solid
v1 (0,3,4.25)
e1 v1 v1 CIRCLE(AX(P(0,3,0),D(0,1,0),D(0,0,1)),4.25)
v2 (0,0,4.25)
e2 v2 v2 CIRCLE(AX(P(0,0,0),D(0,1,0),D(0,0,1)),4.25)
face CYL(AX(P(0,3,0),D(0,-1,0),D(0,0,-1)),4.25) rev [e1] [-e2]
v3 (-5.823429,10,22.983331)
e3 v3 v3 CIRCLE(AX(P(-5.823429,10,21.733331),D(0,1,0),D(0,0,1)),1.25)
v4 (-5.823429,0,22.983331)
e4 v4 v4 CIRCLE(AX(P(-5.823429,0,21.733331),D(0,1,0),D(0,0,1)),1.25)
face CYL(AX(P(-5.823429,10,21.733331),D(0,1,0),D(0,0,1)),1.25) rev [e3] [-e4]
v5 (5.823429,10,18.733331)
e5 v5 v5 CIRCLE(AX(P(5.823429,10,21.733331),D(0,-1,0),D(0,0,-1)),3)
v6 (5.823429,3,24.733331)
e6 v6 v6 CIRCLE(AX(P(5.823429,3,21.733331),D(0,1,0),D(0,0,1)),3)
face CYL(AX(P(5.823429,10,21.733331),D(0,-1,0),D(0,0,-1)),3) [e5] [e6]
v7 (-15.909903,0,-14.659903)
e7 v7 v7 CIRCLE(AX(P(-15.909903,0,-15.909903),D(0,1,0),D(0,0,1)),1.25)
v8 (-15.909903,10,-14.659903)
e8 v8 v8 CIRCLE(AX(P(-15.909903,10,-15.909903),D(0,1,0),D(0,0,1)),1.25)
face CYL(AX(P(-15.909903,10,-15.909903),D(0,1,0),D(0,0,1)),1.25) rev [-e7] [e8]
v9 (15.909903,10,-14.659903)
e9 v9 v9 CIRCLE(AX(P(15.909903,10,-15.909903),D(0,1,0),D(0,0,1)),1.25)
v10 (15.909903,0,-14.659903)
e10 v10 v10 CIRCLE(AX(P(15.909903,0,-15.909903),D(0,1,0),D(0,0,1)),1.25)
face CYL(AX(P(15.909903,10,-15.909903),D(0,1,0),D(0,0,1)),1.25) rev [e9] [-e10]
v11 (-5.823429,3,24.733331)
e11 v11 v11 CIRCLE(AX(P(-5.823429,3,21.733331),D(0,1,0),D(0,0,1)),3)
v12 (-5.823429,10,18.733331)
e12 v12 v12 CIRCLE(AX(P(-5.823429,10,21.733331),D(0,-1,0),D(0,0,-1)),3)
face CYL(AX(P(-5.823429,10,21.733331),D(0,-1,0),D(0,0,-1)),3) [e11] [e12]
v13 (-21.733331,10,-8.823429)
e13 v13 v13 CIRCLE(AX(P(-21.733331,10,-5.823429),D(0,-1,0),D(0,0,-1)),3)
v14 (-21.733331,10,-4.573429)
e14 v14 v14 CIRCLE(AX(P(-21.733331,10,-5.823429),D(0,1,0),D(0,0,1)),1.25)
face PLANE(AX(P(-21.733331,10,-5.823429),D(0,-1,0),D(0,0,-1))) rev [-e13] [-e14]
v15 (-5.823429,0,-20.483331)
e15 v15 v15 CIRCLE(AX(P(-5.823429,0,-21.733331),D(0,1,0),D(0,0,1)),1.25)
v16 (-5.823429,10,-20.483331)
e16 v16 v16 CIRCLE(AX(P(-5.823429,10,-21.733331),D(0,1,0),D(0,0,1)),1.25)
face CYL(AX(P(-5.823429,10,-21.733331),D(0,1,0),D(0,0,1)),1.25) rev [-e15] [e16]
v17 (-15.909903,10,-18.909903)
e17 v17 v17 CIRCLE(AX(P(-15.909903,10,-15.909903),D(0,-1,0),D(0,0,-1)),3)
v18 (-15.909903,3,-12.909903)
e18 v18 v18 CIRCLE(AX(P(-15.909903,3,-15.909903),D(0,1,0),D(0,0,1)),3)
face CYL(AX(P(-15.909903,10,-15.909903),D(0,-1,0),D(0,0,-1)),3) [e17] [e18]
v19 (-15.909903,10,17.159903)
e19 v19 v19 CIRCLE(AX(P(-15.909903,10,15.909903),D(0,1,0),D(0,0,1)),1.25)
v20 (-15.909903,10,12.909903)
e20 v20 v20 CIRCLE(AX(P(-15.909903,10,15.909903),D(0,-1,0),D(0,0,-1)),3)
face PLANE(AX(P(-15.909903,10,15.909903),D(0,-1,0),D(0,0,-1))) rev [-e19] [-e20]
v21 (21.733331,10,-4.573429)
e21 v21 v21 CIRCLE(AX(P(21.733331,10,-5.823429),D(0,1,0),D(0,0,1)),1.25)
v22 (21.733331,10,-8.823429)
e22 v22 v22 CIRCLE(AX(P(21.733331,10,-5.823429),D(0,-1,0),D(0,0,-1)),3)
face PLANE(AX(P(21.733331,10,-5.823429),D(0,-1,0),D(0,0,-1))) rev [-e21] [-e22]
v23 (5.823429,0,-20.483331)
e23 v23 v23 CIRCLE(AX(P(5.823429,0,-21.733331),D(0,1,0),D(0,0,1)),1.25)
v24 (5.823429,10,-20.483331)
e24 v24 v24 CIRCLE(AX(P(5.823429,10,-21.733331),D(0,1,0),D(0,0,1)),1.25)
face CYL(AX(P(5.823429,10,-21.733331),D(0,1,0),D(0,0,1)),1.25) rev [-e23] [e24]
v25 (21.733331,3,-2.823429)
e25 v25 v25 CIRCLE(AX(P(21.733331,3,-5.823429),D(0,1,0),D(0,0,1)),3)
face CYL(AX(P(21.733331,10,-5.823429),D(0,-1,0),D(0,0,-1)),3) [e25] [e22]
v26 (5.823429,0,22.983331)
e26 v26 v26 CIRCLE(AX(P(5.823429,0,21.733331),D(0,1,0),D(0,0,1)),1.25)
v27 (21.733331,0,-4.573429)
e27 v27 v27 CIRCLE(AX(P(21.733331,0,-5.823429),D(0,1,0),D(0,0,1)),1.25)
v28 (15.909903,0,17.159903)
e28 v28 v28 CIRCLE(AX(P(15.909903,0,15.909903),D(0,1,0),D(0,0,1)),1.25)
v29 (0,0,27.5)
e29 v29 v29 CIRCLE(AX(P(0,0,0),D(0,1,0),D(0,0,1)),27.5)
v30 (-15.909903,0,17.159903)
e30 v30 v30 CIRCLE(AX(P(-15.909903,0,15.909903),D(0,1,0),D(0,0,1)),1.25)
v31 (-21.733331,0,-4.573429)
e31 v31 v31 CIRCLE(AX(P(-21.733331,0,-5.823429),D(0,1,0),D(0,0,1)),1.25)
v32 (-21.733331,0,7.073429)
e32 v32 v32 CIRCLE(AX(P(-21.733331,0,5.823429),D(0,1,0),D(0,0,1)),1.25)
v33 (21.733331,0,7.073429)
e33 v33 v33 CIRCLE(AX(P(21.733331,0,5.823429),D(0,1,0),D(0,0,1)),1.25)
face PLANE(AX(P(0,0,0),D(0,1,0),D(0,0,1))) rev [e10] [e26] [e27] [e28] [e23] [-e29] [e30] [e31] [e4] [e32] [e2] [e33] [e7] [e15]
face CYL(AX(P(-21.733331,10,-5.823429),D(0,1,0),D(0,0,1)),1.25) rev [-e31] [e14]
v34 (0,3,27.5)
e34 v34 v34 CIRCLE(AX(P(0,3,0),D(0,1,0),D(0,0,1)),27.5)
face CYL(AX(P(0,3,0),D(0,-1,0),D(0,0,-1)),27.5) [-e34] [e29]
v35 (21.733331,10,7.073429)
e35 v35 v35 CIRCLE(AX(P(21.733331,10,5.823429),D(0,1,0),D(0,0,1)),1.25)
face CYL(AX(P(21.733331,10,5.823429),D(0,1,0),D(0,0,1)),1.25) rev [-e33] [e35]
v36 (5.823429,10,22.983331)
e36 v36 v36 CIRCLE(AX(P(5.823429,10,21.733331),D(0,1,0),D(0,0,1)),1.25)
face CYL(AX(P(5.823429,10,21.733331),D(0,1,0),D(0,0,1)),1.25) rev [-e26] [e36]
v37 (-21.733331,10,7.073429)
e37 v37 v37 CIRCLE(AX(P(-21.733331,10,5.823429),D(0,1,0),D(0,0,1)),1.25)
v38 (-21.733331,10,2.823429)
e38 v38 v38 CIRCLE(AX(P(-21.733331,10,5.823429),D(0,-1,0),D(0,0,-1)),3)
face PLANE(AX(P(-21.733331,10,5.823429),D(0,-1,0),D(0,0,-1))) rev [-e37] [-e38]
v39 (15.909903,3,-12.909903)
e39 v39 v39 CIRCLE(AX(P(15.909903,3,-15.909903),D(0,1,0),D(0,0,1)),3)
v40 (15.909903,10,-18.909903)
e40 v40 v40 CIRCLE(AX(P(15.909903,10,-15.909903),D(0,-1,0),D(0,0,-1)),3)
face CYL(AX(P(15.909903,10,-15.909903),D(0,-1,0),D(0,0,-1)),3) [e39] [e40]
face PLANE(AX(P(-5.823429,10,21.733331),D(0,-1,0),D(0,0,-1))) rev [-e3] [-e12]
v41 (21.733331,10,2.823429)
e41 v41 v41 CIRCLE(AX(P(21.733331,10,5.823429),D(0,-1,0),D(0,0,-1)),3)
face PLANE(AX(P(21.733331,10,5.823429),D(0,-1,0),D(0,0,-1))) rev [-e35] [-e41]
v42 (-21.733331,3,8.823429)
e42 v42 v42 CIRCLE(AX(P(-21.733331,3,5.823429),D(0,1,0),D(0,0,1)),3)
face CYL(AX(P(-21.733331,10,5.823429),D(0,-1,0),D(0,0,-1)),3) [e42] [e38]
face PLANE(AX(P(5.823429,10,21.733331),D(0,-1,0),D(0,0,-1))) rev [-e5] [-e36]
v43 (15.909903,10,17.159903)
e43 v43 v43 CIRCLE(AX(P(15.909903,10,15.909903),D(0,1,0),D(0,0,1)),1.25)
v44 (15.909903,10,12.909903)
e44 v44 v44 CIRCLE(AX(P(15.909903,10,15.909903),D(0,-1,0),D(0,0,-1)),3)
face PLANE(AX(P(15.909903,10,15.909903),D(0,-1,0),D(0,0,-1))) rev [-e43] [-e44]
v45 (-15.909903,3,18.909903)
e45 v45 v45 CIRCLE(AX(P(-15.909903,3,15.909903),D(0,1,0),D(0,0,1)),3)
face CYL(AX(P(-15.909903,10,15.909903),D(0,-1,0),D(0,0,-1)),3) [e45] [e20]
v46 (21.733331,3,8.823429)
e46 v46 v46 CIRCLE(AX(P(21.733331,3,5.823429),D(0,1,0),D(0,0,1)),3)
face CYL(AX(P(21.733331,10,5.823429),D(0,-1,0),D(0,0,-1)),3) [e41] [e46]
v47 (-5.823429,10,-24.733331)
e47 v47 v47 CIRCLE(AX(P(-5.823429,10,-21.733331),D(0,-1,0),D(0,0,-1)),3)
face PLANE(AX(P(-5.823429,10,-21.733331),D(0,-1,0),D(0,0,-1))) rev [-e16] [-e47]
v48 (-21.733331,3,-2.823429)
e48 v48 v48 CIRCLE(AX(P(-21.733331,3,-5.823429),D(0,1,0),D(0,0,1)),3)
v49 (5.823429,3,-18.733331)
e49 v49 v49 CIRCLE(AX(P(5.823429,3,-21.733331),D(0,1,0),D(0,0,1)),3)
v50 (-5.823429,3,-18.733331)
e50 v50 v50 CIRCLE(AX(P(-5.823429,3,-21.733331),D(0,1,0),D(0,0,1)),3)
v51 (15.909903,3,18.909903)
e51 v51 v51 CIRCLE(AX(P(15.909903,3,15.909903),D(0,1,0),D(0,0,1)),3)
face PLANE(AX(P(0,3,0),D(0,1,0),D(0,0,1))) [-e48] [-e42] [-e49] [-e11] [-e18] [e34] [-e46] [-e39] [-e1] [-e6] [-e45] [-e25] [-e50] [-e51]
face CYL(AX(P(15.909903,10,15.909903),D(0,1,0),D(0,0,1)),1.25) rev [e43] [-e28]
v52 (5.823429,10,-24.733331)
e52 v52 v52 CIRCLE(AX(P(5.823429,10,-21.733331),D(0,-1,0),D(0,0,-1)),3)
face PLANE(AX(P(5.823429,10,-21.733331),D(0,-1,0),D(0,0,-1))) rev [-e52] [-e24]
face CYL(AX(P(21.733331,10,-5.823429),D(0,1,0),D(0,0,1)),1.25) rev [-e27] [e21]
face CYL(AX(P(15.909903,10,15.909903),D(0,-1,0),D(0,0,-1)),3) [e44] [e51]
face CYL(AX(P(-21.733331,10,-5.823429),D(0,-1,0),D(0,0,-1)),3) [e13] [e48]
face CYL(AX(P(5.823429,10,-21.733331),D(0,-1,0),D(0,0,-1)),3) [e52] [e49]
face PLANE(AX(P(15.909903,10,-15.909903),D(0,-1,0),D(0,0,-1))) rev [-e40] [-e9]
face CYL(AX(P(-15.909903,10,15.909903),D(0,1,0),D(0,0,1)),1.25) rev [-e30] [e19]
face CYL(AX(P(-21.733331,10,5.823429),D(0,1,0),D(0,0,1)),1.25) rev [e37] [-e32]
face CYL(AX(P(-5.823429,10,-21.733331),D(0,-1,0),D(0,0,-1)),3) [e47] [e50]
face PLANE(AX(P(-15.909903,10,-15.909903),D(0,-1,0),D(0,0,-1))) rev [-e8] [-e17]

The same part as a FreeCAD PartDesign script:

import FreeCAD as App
import Part
import Sketcher
from FreeCAD import Vector

doc = App.newDocument("Part")
body = doc.addObject("PartDesign::Body", "Body")

# Sketch on XZ plane
sketch1 = body.newObject("Sketcher::SketchObject", "Sketch")
sketch1.AttachmentSupport = (doc.getObject("XZ_Plane"), [""])
sketch1.MapMode = "FlatFace"
sketch1.addGeometry(Part.Circle(Vector(0, 0, 0), Vector(0, 0, 1), 27.5), False)
sketch1.addGeometry(Part.Circle(Vector(-15.9, -15.9, 0), Vector(0, 0, 1), 3), False)
sketch1.addGeometry(Part.Circle(Vector(-21.7, -5.8, 0), Vector(0, 0, 1), 3), False)
sketch1.addGeometry(Part.Circle(Vector(-5.8, -21.7, 0), Vector(0, 0, 1), 3), False)
sketch1.addGeometry(Part.Circle(Vector(0, 0, 0), Vector(0, 0, 1), 4.2), False)
sketch1.addGeometry(Part.Circle(Vector(-21.7, 5.8, 0), Vector(0, 0, 1), 3), False)
sketch1.addGeometry(Part.Circle(Vector(-15.9, 15.9, 0), Vector(0, 0, 1), 3), False)
sketch1.addGeometry(Part.Circle(Vector(-5.8, 21.7, 0), Vector(0, 0, 1), 3), False)
sketch1.addGeometry(Part.Circle(Vector(5.8, -21.7, 0), Vector(0, 0, 1), 3), False)
sketch1.addGeometry(Part.Circle(Vector(15.9, -15.9, 0), Vector(0, 0, 1), 3), False)
sketch1.addGeometry(Part.Circle(Vector(21.7, -5.8, 0), Vector(0, 0, 1), 3), False)
sketch1.addGeometry(Part.Circle(Vector(5.8, 21.7, 0), Vector(0, 0, 1), 3), False)
sketch1.addGeometry(Part.Circle(Vector(21.7, 5.8, 0), Vector(0, 0, 1), 3), False)
sketch1.addGeometry(Part.Circle(Vector(15.9, 15.9, 0), Vector(0, 0, 1), 3), False)
sketch1.addConstraint(Sketcher.Constraint("Coincident", 0, 3, -1, 1))
sketch1.addConstraint(Sketcher.Constraint("Coincident", 4, 3, -1, 1))
sketch1.addConstraint(Sketcher.Constraint("Equal", 1, 2))
sketch1.addConstraint(Sketcher.Constraint("Equal", 2, 3))
sketch1.addConstraint(Sketcher.Constraint("Equal", 3, 5))
sketch1.addConstraint(Sketcher.Constraint("Equal", 5, 6))
sketch1.addConstraint(Sketcher.Constraint("Equal", 6, 7))
sketch1.addConstraint(Sketcher.Constraint("Equal", 7, 8))
sketch1.addConstraint(Sketcher.Constraint("Equal", 8, 9))
sketch1.addConstraint(Sketcher.Constraint("Equal", 9, 10))
sketch1.addConstraint(Sketcher.Constraint("Equal", 10, 11))
sketch1.addConstraint(Sketcher.Constraint("Equal", 11, 12))
sketch1.addConstraint(Sketcher.Constraint("Equal", 12, 13))
sketch1.addConstraint(Sketcher.Constraint("Symmetric", 7, 3, 8, 3, -1, 1))
sketch1.addConstraint(Sketcher.Constraint("Symmetric", 6, 3, 9, 3, -1, 1))
sketch1.addConstraint(Sketcher.Constraint("Symmetric", 5, 3, 10, 3, -1, 1))
sketch1.addConstraint(Sketcher.Constraint("Symmetric", 3, 3, 11, 3, -1, 1))
sketch1.addConstraint(Sketcher.Constraint("Symmetric", 2, 3, 12, 3, -1, 1))
sketch1.addConstraint(Sketcher.Constraint("Symmetric", 1, 3, 13, 3, -1, 1))
sketch1.addConstraint(Sketcher.Constraint("Symmetric", 3, 3, 8, 3, -2))
sketch1.addConstraint(Sketcher.Constraint("Symmetric", 1, 3, 9, 3, -2))
sketch1.addConstraint(Sketcher.Constraint("Symmetric", 2, 3, 10, 3, -2))
sketch1.addConstraint(Sketcher.Constraint("Diameter", 0, 55.0))
sketch1.addConstraint(Sketcher.Constraint("Diameter", 1, 6.0))
sketch1.addConstraint(Sketcher.Constraint("Diameter", 4, 8.5))
sketch1.addConstraint(Sketcher.Constraint("DistanceX", 2, 3, -1, 1, 21.733331))
sketch1.addConstraint(Sketcher.Constraint("DistanceY", 2, 3, -1, 1, 5.823429))
sketch1.addConstraint(Sketcher.Constraint("DistanceX", 3, 3, -1, 1, 5.823429))
sketch1.addConstraint(Sketcher.Constraint("DistanceY", 3, 3, -1, 1, 21.733331))
sketch1.addConstraint(Sketcher.Constraint("DistanceX", 2, 3, 1, 3, 5.823429))
sketch1.addConstraint(Sketcher.Constraint("DistanceY", 3, 3, 1, 3, 5.823429))
pad1 = body.newObject("PartDesign::Pad", "Pad")
pad1.Profile = sketch1
pad1.Length = 3
pad1.Reversed = True

# Sketch on XZ plane
sketch2 = body.newObject("Sketcher::SketchObject", "Sketch001")
sketch2.AttachmentSupport = (doc.getObject("XZ_Plane"), [""])
sketch2.MapMode = "FlatFace"
sketch2.addGeometry(Part.Circle(Vector(15.9, 15.9, 0), Vector(0, 0, 1), 3), False)
sketch2.addGeometry(Part.Circle(Vector(21.7, 5.8, 0), Vector(0, 0, 1), 3), False)
sketch2.addGeometry(Part.Circle(Vector(21.7, -5.8, 0), Vector(0, 0, 1), 3), False)
sketch2.addGeometry(Part.Circle(Vector(15.9, -15.9, 0), Vector(0, 0, 1), 3), False)
sketch2.addGeometry(Part.Circle(Vector(5.8, -21.7, 0), Vector(0, 0, 1), 3), False)
sketch2.addGeometry(Part.Circle(Vector(-5.8, -21.7, 0), Vector(0, 0, 1), 3), False)
sketch2.addGeometry(Part.Circle(Vector(-15.9, -15.9, 0), Vector(0, 0, 1), 3), False)
sketch2.addGeometry(Part.Circle(Vector(-21.7, -5.8, 0), Vector(0, 0, 1), 3), False)
sketch2.addGeometry(Part.Circle(Vector(-21.7, 5.8, 0), Vector(0, 0, 1), 3), False)
sketch2.addGeometry(Part.Circle(Vector(-15.9, 15.9, 0), Vector(0, 0, 1), 3), False)
sketch2.addGeometry(Part.Circle(Vector(-5.8, 21.7, 0), Vector(0, 0, 1), 3), False)
sketch2.addGeometry(Part.Circle(Vector(5.8, 21.7, 0), Vector(0, 0, 1), 3), False)
sketch2.addConstraint(Sketcher.Constraint("Equal", 0, 1))
sketch2.addConstraint(Sketcher.Constraint("Equal", 1, 2))
sketch2.addConstraint(Sketcher.Constraint("Equal", 2, 3))
sketch2.addConstraint(Sketcher.Constraint("Equal", 3, 4))
sketch2.addConstraint(Sketcher.Constraint("Equal", 4, 5))
sketch2.addConstraint(Sketcher.Constraint("Equal", 5, 6))
sketch2.addConstraint(Sketcher.Constraint("Equal", 6, 7))
sketch2.addConstraint(Sketcher.Constraint("Equal", 7, 8))
sketch2.addConstraint(Sketcher.Constraint("Equal", 8, 9))
sketch2.addConstraint(Sketcher.Constraint("Equal", 9, 10))
sketch2.addConstraint(Sketcher.Constraint("Equal", 10, 11))
sketch2.addConstraint(Sketcher.Constraint("Symmetric", 0, 3, 6, 3, -1, 1))
sketch2.addConstraint(Sketcher.Constraint("Symmetric", 1, 3, 7, 3, -1, 1))
sketch2.addConstraint(Sketcher.Constraint("Symmetric", 2, 3, 8, 3, -1, 1))
sketch2.addConstraint(Sketcher.Constraint("Symmetric", 3, 3, 9, 3, -1, 1))
sketch2.addConstraint(Sketcher.Constraint("Symmetric", 4, 3, 10, 3, -1, 1))
sketch2.addConstraint(Sketcher.Constraint("Symmetric", 5, 3, 11, 3, -1, 1))
sketch2.addConstraint(Sketcher.Constraint("Symmetric", 4, 3, 5, 3, -2))
sketch2.addConstraint(Sketcher.Constraint("Symmetric", 3, 3, 6, 3, -2))
sketch2.addConstraint(Sketcher.Constraint("Symmetric", 2, 3, 7, 3, -2))
sketch2.addConstraint(Sketcher.Constraint("Diameter", 0, 6.0))
sketch2.addConstraint(Sketcher.Constraint("DistanceX", -1, 1, 1, 3, 21.733331))
sketch2.addConstraint(Sketcher.Constraint("DistanceY", -1, 1, 1, 3, 5.823429))
sketch2.addConstraint(Sketcher.Constraint("DistanceX", -1, 1, 4, 3, 5.823429))
sketch2.addConstraint(Sketcher.Constraint("DistanceY", 4, 3, -1, 1, 21.733331))
sketch2.addConstraint(Sketcher.Constraint("DistanceX", 0, 3, 1, 3, 5.823429))
sketch2.addConstraint(Sketcher.Constraint("DistanceY", 2, 3, 0, 3, 21.733331))
pad2 = body.newObject("PartDesign::Pad", "Pad001")
pad2.Profile = sketch2
pad2.Length = 10
pad2.Reversed = True

# Sketch on XZ plane
sketch3 = body.newObject("Sketcher::SketchObject", "Sketch002")
sketch3.AttachmentSupport = (doc.getObject("XZ_Plane"), [""])
sketch3.MapMode = "FlatFace"
sketch3.AttachmentOffset = App.Placement(Vector(0, 0, -10), App.Rotation())
sketch3.addGeometry(Part.Circle(Vector(-5.8, -21.7, 0), Vector(0, 0, 1), 1.2), False)
sketch3.addConstraint(Sketcher.Constraint("Diameter", 0, 2.5))
sketch3.addConstraint(Sketcher.Constraint("DistanceX", 0, 3, -1, 1, 5.823429))
sketch3.addConstraint(Sketcher.Constraint("DistanceY", 0, 3, -1, 1, 21.733331))
doc.recompute()
hole = body.newObject("PartDesign::Hole", "Hole")
hole.Profile = sketch3
hole.ThreadType = "None"
hole.Diameter = 2.5
hole.DepthType = "ThroughAll"
hole.Reversed = True
doc.recompute()

polarpattern = body.newObject("PartDesign::PolarPattern", "PolarPattern")
polarpattern.Originals = [hole]
polarpattern.Axis = (doc.getObject("Y_Axis"), [""])
polarpattern.Angle = 360
polarpattern.Occurrences = 12
body.Tip = polarpattern

doc.recompute()
